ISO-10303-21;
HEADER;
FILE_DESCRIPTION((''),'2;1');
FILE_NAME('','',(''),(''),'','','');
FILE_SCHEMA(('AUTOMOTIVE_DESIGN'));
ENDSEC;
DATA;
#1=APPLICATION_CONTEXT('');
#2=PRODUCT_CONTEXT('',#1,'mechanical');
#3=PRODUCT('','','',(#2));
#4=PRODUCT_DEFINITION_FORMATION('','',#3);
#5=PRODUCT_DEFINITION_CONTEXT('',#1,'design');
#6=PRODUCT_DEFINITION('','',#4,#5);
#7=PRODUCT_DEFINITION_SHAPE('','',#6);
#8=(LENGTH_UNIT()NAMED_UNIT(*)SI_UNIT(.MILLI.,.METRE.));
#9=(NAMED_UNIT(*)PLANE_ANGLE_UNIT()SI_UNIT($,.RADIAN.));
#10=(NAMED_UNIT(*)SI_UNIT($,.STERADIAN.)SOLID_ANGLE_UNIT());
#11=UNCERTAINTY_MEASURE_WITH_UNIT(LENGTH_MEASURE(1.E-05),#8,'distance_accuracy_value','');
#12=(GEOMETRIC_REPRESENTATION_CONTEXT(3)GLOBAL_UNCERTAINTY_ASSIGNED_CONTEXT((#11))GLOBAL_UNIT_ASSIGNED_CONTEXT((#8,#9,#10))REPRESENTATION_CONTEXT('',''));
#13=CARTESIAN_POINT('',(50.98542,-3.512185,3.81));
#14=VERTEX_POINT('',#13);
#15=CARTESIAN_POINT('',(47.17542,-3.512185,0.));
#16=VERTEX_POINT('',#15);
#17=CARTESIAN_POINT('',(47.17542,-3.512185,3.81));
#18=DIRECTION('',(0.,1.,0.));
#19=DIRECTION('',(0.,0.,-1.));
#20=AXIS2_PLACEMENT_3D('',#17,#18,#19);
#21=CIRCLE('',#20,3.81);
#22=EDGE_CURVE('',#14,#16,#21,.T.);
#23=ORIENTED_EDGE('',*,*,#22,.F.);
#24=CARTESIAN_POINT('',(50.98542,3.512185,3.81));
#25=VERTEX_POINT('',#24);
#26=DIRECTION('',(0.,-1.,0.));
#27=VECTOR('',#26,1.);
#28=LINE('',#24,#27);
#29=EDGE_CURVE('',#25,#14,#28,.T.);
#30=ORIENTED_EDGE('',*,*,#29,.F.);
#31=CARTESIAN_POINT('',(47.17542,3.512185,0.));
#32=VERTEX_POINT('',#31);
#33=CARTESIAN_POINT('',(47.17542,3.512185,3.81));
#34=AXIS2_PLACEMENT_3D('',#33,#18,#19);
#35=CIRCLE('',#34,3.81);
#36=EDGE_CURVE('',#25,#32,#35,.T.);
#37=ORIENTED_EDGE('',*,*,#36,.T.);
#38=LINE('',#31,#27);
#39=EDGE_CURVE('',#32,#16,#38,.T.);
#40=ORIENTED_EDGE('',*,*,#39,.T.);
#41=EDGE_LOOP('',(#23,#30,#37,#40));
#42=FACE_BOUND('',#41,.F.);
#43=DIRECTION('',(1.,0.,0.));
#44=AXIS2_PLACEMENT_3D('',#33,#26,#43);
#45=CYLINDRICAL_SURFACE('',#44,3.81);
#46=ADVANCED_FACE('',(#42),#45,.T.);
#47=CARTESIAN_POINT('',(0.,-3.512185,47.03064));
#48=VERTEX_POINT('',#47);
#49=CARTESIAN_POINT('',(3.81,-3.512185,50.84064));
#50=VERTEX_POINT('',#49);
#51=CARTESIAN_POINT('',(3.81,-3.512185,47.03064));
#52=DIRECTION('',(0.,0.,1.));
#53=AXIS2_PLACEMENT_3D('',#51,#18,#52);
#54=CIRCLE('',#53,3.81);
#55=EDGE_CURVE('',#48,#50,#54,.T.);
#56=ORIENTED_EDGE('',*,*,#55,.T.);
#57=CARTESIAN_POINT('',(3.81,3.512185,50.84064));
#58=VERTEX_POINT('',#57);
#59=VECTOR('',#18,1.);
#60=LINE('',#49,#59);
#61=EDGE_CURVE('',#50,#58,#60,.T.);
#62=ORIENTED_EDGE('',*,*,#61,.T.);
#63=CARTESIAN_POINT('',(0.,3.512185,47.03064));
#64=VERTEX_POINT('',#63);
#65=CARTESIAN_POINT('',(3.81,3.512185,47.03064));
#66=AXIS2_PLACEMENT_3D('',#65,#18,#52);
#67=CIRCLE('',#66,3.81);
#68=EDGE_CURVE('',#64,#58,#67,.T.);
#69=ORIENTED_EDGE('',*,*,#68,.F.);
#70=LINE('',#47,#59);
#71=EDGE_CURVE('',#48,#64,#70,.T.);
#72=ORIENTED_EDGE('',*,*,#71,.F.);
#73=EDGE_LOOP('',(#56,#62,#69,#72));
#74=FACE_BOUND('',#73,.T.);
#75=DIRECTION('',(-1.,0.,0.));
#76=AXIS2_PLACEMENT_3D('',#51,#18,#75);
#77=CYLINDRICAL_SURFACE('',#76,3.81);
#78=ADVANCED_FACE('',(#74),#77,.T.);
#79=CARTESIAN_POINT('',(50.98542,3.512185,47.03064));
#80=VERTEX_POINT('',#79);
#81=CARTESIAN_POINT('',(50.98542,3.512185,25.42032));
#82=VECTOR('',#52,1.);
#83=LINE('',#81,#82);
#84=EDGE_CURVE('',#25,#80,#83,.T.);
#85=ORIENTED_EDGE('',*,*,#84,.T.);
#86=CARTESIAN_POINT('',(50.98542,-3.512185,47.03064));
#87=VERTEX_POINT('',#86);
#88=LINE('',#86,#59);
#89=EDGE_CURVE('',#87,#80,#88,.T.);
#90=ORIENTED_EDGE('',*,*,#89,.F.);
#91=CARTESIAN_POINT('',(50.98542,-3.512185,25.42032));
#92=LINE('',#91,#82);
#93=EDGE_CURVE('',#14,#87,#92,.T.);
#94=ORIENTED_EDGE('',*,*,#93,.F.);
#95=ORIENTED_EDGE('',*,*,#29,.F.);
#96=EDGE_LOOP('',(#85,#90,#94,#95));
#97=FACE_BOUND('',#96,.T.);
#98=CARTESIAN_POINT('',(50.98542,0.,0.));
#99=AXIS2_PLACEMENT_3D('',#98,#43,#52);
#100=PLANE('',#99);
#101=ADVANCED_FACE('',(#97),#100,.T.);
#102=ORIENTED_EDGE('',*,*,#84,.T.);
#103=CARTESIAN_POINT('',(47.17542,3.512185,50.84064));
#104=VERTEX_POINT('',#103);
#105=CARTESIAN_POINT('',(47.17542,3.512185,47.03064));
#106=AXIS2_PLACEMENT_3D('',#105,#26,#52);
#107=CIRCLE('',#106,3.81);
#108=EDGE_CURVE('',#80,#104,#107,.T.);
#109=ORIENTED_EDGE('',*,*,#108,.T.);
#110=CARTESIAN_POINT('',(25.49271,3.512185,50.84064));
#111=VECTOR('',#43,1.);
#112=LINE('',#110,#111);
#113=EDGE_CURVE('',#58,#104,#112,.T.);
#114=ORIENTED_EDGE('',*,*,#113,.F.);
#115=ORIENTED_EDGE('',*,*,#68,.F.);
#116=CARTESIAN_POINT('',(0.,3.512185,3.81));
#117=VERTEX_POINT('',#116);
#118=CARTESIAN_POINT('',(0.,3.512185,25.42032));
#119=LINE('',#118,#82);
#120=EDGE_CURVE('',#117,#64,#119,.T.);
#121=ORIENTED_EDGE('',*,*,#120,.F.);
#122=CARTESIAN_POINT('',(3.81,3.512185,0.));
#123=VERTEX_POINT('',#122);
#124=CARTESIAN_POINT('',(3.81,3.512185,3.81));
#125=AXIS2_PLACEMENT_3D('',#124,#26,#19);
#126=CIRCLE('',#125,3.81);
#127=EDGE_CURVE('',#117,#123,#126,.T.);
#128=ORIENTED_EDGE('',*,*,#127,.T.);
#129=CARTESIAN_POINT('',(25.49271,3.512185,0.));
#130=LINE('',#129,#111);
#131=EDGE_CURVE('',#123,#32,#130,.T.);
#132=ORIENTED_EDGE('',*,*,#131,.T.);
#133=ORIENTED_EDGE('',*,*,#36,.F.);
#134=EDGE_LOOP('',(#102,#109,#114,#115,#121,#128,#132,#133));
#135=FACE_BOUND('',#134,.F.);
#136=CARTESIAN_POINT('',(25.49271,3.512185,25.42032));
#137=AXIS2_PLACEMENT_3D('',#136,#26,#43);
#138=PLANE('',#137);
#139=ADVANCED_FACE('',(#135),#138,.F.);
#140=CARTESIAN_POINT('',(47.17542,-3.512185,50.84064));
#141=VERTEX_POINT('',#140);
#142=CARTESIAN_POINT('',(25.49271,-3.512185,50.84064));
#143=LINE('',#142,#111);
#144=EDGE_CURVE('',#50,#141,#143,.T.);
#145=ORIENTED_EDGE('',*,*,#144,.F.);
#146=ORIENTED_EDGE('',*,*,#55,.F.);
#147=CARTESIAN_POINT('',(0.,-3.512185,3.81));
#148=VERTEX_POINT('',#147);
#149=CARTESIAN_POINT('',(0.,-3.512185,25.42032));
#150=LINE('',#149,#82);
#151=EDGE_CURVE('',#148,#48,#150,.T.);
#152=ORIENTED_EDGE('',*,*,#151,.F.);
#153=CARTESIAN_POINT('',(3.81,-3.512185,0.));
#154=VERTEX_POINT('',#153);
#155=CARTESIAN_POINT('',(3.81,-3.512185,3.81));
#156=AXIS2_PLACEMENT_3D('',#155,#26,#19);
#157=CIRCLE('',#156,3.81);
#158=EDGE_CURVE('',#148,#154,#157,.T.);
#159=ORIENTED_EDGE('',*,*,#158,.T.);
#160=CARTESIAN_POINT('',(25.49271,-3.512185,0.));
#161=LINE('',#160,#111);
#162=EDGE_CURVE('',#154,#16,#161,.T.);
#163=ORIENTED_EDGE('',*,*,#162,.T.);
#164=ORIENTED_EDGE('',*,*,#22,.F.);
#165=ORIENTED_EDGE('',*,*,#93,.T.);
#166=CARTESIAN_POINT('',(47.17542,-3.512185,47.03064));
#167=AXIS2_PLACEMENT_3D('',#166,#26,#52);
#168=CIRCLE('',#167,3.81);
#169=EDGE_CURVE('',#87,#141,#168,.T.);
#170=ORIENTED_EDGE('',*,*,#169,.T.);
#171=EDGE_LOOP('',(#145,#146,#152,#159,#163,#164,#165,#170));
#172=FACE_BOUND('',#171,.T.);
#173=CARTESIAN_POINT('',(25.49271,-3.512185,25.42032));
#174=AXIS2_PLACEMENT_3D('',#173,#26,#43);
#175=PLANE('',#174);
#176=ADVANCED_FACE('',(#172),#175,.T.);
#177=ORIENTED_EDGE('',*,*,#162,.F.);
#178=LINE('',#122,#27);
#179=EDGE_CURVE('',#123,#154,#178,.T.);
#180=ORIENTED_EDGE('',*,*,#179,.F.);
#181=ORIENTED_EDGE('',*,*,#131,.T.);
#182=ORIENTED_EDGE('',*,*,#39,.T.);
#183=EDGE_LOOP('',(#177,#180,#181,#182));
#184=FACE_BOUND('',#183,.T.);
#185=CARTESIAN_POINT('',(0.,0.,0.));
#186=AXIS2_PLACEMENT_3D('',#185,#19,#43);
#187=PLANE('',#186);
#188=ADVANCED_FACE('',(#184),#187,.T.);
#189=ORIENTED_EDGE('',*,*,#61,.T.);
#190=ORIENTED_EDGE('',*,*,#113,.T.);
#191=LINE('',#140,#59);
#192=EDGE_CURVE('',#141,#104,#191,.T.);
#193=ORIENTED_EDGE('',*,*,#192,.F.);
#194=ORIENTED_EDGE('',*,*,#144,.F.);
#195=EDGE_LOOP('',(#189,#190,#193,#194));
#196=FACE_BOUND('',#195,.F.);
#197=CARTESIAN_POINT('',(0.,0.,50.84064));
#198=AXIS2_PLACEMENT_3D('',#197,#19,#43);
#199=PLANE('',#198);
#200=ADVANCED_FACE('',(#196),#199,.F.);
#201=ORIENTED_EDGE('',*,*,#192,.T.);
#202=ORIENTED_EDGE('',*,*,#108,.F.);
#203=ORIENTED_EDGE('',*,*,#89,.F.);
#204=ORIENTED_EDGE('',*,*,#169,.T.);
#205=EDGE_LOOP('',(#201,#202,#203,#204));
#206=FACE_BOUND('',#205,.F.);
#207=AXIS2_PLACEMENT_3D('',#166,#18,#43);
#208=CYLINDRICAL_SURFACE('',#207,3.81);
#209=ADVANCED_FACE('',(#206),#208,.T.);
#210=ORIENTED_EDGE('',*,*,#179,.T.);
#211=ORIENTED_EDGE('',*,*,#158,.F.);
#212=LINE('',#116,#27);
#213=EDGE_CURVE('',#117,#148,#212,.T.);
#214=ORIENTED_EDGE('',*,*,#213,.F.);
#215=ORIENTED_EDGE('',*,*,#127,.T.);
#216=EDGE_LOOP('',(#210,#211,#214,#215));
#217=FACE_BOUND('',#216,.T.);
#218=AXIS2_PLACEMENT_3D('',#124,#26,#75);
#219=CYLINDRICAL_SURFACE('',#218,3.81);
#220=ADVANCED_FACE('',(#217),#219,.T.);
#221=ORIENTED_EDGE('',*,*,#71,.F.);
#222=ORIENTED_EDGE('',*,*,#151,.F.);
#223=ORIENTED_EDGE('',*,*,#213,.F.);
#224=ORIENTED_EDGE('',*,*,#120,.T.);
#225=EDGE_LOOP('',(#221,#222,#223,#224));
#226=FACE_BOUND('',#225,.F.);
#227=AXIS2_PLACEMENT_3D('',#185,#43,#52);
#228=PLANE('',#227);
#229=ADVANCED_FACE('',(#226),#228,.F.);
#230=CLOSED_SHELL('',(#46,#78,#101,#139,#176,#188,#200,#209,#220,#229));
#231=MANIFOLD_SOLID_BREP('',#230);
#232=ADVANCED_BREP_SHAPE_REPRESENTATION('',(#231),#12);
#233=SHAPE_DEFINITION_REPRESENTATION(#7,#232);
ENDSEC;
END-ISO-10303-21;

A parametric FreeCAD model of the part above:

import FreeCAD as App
import Part
import Sketcher
from FreeCAD import Vector
Q = App.Units.Quantity


def edges_at(feature, points):
    """Names of the edges that pass closest to the given points."""
    edges = feature.Shape.Edges
    near = lambda p: min(range(len(edges)), key=lambda i: edges[i].distToShape(Part.Vertex(*p))[0])
    return sorted({f"Edge{near(p) + 1}" for p in points})


def add_polygon(sketch, points):
    """Adds a closed chain of lines whose ends are joined by coincident constraints."""
    first, n = sketch.GeometryCount, len(points)
    for a, b in zip(points, points[1:] + points[:1]):
        sketch.addGeometry(Part.LineSegment(App.Vector(*a, 0), App.Vector(*b, 0)), False)
    for i in range(n):
        sketch.addConstraint(Sketcher.Constraint("Coincident", first + i, 2, first + (i + 1) % n, 1))

doc = App.newDocument("Part")
body = doc.addObject("PartDesign::Body", "Body")

sketch1 = body.newObject("Sketcher::SketchObject", "Sketch")
sketch1.AttachmentSupport = (doc.getObject("XZ_Plane"), [""])
sketch1.MapMode = "FlatFace"
add_polygon(sketch1, [(0, 51), (0, 0), (51, 0), (51, 51)])
sketch1.addConstraint(Sketcher.Constraint("Vertical", 0))
sketch1.addConstraint(Sketcher.Constraint("Horizontal", 1))
sketch1.addConstraint(Sketcher.Constraint("Vertical", 2))
sketch1.addConstraint(Sketcher.Constraint("Horizontal", 3))
sketch1.addConstraint(Sketcher.Constraint("Coincident", 0, 2, -1, 1))
sketch1.addConstraint(Sketcher.Constraint("DistanceX", 1, 1, 1, 2, Q("2.0073 in")))
sketch1.addConstraint(Sketcher.Constraint("DistanceY", 0, 2, 0, 1, Q("2.0016 in")))
pad1 = body.newObject("PartDesign::Pad", "Pad")
pad1.Profile = sketch1
pad1.Length = 7.02437
pad1.Midplane = True
doc.recompute()

fillet = body.newObject("PartDesign::Fillet", "Fillet")
fillet.Base = (pad1, edges_at(pad1, [
    (50.985, 0, 50.841),
    (50.985, 0, 0),
    (0, 0, 0),
    (0, 0, 50.841),
]))
fillet.Radius = Q("0.15 in")

doc.recompute()
